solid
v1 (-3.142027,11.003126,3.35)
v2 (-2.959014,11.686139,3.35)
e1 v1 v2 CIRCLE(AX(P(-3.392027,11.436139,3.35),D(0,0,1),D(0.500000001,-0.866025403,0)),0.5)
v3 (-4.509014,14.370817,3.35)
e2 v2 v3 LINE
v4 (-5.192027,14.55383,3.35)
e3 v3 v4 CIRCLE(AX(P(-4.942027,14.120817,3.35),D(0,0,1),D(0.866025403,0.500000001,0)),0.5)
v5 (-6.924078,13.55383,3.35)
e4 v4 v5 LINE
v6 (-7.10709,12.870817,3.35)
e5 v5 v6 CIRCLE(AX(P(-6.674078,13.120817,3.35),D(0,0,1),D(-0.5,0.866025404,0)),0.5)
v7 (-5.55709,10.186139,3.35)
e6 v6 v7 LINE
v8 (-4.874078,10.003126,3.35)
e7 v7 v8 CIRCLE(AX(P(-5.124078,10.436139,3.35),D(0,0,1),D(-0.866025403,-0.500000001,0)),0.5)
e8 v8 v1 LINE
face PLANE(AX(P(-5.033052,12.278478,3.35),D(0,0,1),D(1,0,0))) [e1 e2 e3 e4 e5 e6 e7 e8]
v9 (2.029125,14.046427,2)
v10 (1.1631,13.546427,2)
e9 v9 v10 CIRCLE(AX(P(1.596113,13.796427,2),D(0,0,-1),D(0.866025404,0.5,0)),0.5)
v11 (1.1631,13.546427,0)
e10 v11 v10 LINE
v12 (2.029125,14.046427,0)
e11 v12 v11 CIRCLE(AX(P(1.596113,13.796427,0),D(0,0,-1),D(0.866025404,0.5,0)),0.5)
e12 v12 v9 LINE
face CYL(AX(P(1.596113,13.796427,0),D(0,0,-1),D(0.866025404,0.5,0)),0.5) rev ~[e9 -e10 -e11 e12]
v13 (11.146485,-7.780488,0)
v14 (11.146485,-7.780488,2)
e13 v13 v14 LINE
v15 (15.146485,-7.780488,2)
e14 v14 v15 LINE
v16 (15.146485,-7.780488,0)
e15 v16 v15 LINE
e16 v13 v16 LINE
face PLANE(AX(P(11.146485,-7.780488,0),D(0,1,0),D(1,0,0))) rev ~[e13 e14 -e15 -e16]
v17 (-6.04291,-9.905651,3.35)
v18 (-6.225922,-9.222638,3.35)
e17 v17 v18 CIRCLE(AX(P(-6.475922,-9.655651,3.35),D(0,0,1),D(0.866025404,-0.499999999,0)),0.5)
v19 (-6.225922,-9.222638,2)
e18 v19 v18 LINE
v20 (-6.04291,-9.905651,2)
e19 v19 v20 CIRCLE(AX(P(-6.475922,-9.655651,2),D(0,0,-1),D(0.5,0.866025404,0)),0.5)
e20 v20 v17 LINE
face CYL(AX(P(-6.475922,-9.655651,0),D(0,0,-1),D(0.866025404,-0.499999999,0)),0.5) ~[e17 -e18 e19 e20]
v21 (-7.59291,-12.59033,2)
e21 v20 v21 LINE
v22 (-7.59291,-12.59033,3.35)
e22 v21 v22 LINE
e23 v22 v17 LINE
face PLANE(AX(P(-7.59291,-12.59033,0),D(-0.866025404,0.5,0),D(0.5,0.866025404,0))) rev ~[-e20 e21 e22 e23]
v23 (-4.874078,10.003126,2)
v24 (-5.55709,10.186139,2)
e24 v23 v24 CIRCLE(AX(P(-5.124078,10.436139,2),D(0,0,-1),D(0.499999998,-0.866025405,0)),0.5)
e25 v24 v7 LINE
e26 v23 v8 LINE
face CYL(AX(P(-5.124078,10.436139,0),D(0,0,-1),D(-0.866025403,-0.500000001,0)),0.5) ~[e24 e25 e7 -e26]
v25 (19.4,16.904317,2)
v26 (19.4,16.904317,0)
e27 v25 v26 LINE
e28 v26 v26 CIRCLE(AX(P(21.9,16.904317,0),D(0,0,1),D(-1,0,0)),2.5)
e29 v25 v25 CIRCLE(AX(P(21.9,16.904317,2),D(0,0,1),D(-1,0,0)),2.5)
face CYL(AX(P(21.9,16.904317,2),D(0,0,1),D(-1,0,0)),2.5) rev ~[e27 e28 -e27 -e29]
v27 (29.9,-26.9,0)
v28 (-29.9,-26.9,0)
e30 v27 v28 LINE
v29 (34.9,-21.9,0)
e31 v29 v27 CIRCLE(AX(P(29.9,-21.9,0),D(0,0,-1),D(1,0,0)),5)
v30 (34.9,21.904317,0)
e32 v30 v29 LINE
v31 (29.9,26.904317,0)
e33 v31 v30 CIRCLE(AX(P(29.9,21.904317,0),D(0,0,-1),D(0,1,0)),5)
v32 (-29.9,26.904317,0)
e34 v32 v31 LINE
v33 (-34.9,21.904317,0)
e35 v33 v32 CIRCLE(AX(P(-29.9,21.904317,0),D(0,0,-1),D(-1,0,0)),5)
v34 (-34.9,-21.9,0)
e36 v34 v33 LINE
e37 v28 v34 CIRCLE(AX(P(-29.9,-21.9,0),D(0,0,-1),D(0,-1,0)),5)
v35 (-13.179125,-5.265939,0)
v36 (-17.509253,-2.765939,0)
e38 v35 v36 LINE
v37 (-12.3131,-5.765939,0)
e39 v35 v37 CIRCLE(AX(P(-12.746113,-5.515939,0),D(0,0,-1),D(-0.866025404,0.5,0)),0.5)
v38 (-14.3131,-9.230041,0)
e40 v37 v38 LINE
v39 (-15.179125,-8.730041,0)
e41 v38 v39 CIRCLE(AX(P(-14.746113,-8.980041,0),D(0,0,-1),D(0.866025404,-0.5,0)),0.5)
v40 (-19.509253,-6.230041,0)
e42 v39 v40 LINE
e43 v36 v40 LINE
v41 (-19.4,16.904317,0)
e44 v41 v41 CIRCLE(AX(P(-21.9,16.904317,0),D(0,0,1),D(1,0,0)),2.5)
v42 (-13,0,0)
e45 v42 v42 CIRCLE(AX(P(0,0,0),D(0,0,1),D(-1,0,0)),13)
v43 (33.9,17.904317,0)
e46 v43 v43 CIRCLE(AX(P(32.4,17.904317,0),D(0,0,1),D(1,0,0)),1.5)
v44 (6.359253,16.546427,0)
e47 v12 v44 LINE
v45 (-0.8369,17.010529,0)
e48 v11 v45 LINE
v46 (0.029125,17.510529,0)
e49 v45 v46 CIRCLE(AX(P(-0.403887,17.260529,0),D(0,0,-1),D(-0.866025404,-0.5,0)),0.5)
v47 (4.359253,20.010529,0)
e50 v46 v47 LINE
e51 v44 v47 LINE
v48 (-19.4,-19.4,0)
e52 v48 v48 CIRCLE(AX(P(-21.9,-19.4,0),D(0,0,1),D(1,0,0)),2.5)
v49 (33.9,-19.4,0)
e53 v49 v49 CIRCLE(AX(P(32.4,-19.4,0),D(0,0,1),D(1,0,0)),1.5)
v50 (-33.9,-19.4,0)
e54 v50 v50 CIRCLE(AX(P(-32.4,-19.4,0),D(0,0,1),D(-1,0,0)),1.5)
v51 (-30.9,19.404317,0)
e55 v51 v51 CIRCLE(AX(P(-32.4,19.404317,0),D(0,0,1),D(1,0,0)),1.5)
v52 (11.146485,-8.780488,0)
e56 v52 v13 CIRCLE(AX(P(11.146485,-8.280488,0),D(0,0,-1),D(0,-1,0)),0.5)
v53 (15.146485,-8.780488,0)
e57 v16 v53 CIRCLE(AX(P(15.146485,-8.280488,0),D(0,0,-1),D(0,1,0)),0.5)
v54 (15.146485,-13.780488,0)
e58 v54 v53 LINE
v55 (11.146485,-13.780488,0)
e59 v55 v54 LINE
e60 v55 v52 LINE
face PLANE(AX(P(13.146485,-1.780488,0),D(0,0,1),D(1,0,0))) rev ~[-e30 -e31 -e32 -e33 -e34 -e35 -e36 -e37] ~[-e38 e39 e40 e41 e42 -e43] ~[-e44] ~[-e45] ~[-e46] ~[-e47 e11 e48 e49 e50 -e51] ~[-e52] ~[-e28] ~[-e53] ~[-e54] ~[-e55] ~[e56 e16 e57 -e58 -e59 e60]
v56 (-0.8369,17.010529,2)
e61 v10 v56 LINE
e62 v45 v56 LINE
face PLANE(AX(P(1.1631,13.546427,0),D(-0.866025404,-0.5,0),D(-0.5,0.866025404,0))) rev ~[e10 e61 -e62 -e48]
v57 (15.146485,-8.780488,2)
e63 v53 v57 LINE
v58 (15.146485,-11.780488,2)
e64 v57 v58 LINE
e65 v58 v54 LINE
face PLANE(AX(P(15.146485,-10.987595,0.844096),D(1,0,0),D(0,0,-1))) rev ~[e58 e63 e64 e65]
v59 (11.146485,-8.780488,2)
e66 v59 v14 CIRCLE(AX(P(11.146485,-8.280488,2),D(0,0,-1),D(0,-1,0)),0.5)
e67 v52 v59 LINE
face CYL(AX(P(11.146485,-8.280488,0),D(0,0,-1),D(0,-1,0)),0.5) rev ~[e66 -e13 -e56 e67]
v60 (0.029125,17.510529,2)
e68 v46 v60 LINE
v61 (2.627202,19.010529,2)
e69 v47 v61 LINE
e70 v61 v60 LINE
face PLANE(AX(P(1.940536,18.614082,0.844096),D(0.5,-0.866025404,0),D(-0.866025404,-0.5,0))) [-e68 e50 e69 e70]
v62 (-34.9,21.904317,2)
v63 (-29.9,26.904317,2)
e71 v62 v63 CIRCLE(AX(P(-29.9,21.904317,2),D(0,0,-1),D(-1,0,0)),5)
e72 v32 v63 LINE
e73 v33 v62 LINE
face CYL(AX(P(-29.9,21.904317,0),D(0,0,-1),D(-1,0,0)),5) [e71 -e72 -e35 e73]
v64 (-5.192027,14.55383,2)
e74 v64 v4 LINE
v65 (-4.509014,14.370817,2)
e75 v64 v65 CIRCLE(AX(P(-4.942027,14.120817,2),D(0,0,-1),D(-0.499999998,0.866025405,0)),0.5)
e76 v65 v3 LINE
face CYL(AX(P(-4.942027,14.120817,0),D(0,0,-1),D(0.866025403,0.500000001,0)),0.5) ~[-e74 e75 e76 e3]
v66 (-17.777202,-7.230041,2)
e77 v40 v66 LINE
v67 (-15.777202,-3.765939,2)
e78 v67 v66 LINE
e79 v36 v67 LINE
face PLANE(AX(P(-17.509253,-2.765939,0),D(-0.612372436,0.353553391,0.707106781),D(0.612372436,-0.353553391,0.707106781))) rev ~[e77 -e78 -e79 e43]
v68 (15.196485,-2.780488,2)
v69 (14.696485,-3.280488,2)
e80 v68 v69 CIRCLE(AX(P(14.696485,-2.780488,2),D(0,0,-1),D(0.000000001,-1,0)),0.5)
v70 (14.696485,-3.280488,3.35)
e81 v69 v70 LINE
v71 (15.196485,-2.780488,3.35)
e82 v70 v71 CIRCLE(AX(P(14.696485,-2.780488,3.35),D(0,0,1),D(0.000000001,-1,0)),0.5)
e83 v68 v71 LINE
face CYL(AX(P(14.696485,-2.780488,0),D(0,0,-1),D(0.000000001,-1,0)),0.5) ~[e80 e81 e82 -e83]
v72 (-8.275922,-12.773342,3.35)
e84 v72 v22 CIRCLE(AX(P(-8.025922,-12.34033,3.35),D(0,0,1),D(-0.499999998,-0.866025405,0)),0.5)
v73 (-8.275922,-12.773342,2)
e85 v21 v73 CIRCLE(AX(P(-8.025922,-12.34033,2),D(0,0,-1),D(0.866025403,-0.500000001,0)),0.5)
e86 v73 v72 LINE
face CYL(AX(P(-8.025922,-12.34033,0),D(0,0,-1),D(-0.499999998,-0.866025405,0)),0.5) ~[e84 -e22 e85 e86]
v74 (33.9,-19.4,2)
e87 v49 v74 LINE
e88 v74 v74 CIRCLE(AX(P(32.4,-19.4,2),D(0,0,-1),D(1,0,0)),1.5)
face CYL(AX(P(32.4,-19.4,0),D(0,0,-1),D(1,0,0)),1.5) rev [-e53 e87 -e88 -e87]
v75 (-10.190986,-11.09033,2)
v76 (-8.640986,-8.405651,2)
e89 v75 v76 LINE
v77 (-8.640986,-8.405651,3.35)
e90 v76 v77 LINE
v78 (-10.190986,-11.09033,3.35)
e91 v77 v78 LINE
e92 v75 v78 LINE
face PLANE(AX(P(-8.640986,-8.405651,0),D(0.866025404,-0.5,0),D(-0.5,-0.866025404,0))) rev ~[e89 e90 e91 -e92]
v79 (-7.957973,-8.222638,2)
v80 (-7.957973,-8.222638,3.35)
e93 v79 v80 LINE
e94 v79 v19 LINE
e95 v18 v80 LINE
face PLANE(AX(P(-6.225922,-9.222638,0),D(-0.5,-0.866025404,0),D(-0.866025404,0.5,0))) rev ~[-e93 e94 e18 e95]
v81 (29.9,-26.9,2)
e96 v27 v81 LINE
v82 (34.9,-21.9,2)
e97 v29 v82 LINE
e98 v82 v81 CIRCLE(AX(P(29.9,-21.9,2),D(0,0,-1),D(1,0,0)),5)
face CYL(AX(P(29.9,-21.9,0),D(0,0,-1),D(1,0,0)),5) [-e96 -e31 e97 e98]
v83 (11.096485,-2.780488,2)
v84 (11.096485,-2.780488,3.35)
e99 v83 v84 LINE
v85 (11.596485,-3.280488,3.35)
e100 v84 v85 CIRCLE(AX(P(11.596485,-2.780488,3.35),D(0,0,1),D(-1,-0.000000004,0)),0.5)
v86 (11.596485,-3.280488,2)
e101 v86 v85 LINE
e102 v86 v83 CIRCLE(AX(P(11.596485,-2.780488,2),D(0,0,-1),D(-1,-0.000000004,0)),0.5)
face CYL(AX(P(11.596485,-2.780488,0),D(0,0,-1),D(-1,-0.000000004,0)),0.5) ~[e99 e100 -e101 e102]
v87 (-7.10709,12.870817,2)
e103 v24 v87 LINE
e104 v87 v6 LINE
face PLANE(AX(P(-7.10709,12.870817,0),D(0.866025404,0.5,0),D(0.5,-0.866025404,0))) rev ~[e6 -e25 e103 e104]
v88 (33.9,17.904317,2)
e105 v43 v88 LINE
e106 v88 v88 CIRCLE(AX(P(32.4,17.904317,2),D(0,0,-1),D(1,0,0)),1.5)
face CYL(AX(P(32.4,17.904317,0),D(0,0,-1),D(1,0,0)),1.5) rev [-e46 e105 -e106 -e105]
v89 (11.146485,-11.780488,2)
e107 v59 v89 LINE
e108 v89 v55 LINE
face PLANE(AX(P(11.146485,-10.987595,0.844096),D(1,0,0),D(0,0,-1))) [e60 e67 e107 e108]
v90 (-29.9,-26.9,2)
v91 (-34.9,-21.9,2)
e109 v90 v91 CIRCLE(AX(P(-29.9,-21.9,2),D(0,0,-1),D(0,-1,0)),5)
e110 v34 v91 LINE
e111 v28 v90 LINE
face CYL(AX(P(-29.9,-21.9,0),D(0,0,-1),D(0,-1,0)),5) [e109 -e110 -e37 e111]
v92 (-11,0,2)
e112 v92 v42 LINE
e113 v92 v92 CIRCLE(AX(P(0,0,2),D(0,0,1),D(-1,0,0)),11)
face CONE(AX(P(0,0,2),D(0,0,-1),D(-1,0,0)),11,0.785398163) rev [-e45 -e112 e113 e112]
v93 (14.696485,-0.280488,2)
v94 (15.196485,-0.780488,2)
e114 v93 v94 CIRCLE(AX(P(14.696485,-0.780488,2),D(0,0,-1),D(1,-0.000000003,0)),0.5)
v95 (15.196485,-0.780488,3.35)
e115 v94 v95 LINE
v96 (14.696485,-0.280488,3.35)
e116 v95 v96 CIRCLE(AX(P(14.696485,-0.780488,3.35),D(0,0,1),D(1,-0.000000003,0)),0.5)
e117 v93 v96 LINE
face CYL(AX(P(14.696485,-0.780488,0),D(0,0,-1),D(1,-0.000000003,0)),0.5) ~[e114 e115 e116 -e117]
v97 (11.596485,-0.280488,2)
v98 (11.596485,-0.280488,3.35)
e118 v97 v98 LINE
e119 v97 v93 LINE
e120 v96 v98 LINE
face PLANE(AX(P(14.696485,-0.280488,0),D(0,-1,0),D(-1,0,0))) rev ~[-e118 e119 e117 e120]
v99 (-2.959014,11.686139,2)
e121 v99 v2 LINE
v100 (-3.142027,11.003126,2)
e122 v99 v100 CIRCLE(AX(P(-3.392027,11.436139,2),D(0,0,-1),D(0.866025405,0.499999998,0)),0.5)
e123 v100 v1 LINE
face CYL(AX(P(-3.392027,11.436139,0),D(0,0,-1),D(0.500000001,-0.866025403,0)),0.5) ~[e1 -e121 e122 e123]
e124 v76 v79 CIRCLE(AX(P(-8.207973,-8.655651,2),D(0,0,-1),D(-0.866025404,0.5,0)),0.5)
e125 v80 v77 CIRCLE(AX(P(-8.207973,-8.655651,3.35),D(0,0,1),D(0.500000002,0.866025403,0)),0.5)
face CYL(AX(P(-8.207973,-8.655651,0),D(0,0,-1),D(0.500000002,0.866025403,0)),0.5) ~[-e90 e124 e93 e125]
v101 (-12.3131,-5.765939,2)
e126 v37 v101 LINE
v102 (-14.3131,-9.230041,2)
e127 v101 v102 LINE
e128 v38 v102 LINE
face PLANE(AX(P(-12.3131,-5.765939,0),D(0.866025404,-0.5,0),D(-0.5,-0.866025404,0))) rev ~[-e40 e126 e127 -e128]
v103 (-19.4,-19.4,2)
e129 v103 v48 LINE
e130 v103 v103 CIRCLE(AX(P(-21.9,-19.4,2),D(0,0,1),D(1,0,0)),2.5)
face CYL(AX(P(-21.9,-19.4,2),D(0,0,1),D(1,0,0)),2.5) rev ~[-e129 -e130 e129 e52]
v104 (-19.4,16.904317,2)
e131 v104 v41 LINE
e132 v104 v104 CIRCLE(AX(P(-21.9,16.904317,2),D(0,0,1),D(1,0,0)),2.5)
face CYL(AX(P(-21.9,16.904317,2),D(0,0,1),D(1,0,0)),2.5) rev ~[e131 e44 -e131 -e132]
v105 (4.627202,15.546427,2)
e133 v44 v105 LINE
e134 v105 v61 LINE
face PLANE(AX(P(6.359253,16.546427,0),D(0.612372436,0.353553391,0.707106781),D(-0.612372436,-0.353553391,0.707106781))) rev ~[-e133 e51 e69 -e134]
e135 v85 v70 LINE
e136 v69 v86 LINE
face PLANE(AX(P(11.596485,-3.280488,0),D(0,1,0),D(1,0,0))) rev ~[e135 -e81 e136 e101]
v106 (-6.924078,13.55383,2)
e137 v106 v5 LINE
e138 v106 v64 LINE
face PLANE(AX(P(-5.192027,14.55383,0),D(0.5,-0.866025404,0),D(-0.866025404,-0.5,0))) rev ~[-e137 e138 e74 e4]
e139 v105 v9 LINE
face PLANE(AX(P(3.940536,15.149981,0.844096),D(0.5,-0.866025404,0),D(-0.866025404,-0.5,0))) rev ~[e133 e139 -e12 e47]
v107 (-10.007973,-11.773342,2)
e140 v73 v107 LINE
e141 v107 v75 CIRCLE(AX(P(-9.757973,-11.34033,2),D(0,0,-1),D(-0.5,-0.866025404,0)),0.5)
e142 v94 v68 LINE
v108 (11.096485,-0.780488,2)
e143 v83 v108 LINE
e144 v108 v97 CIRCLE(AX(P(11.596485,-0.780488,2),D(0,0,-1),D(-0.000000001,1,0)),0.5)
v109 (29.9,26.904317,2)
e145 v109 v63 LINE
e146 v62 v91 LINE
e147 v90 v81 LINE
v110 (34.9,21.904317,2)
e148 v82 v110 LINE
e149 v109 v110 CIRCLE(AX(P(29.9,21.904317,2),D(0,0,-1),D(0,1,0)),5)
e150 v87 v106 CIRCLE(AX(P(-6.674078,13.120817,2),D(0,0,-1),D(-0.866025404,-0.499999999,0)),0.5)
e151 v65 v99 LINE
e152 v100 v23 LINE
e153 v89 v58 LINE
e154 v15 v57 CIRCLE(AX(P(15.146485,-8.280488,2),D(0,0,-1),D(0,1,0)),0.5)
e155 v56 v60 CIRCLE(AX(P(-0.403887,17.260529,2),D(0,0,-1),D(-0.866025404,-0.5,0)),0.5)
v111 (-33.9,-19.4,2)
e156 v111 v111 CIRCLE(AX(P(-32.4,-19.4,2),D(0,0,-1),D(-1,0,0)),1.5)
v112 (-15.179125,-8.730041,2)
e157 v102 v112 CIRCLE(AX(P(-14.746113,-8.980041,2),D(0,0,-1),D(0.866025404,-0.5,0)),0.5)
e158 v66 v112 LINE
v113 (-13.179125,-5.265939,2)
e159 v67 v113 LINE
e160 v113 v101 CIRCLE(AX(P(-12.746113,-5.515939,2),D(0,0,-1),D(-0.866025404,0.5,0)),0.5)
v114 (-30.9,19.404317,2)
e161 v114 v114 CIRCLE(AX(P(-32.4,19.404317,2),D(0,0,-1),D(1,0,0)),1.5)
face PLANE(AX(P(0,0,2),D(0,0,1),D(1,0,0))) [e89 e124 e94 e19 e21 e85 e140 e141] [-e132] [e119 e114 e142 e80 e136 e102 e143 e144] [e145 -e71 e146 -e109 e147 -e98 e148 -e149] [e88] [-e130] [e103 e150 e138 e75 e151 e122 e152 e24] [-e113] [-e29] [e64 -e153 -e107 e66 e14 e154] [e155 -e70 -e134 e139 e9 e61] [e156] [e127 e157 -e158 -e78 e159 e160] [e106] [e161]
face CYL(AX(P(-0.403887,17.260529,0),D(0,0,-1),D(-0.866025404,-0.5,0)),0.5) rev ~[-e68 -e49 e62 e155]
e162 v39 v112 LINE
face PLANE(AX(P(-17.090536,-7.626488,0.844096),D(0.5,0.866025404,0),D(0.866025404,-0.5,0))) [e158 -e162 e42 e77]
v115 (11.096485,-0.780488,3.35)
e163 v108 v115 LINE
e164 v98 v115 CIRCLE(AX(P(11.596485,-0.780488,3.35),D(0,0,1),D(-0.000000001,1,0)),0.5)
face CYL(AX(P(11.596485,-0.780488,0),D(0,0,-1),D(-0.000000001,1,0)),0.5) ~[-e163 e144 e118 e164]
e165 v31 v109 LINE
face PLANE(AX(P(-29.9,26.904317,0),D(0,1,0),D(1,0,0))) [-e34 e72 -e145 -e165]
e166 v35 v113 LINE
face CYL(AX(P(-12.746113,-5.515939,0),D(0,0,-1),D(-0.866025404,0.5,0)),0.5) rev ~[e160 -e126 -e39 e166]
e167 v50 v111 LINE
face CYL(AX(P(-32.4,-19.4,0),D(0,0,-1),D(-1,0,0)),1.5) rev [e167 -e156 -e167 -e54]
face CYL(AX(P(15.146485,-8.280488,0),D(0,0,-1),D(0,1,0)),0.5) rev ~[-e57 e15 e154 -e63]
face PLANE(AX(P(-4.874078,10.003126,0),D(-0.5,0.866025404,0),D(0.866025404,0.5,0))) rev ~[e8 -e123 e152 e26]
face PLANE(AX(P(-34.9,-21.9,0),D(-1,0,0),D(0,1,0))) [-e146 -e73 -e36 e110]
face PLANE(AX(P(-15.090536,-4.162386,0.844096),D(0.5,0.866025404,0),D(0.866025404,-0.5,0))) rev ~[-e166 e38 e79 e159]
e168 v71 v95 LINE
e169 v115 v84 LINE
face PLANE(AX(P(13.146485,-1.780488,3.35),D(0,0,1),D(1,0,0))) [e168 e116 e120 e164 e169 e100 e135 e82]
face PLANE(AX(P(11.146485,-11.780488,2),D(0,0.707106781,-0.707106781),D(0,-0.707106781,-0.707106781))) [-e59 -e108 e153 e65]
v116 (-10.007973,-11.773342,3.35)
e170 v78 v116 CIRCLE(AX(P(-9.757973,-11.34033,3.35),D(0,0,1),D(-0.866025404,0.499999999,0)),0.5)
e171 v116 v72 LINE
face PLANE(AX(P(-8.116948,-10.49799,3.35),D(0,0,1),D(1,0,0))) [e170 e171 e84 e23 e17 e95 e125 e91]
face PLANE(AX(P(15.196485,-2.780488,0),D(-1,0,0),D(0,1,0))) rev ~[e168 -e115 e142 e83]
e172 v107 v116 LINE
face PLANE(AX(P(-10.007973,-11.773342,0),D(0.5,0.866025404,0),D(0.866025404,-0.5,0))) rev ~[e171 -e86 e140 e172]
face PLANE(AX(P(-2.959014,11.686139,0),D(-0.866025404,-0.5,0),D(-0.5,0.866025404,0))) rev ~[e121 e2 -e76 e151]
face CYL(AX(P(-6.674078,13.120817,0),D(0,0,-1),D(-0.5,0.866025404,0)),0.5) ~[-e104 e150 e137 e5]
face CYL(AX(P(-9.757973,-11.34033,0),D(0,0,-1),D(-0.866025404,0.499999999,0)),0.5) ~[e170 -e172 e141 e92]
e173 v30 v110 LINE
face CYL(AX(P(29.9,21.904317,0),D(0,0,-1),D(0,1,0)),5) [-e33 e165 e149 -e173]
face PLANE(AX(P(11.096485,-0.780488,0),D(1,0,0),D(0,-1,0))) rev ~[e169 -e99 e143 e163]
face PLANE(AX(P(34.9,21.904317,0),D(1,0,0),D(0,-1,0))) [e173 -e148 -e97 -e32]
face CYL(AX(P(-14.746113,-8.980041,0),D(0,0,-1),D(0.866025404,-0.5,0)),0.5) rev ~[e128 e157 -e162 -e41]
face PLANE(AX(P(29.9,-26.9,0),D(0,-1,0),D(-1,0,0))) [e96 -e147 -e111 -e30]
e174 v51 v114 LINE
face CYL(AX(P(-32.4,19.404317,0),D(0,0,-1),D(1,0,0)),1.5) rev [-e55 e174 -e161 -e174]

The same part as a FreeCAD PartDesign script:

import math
import FreeCAD as App
import Part
import Sketcher

V = App.Vector
Q = App.Units.Quantity

doc = App.newDocument("Part")
params = doc.addObject("Spreadsheet::Sheet", "Params")
for row, (alias, value) in enumerate([
    ("sketch1_radius", "0.5 mm"),
    ("sketch1_width", "76 mm"),
    ("sketch1_width2", "4 mm"),
    ("sketch1_height", "60 mm"),
    ("sketch1_length", "2 mm"),
    ("pad1_length", "2 mm"),
    ("sketch2_radius", "0.5 mm"),
    ("sketch2_height", "2 mm"),
    ("sketch2_length", "2 mm"),
    ("sketch2_width", "3.1 mm"),
    ("sketch2_length2", "3.1 mm"),
    ("pad2_length", "3.35 mm"),
    ("sketch3_radius", "5 mm"),
    ("sketch3_width", "76 mm"),
    ("sketch3_height", "60 mm"),
    ("sketch3_width2", "59.8 mm"),
    ("pocket1_length", "2.95 mm"),
    ("sketch4_diameter", "3.43 mm"),
    ("pocket2_length", "10 mm"),
    ("sketch5_width", "11 mm"),
    ("sketch5_width2", "13 mm"),
    ("sketch5_height", "2 mm"),
    ("groove_angle", "360 deg"),
    ("sketch6_diameter", "3 mm"),
    ("sketch7_diameter", "5 mm"),
    ("sketch8_width", "3 mm"),
    ("sketch8_width2", "5 mm"),
    ("sketch8_height", "2 mm"),
    ("pocket5_length", "4 mm"),
    ("sketch9_width", "5 mm"),
    ("sketch9_width2", "3 mm"),
    ("sketch9_height", "2 mm"),
    ("pocket6_length", "4 mm"),
    ("sketch10_width", "5 mm"),
    ("sketch10_width2", "3 mm"),
    ("sketch10_height", "2 mm"),
    ("pocket7_length", "4 mm"),
], start=1):
    params.set(f"A{row}", alias)
    params.set(f"B{row}", "=" + value)
    params.setAlias(f"B{row}", alias)

body = doc.addObject("PartDesign::Body", "Body")

sketch1 = body.newObject("Sketcher::SketchObject", "Sketch")
sketch1.AttachmentSupport = (doc.getObject("XY_Plane"), [""])
sketch1.MapMode = "FlatFace"
sketch1.addGeometry(Part.LineSegment(V(-38, 30, 0), V(-38, -30, 0)), False)
sketch1.addGeometry(Part.LineSegment(V(-38, -30, 0), V(38, -30, 0)), False)
sketch1.addGeometry(Part.LineSegment(V(38, -30, 0), V(38, 30, 0)), False)
sketch1.addGeometry(Part.LineSegment(V(38, 30, 0), V(-38, 30, 0)), False)
sketch1.addGeometry(Part.ArcOfCircle(Part.Circle(V(-6.5, -9.7, 0), V(0, 0, 1), 0.5), math.radians(-30), math.radians(60)), False)
sketch1.addGeometry(Part.LineSegment(V(-6, -9.9, 0), V(-7.6, -12.6, 0)), False)
sketch1.addGeometry(Part.ArcOfCircle(Part.Circle(V(-8, -12.3, 0), V(0, 0, 1), 0.5), math.radians(-120), math.radians(-30)), False)
sketch1.addGeometry(Part.LineSegment(V(-8.3, -12.8, 0), V(-10, -11.8, 0)), False)
sketch1.addGeometry(Part.ArcOfCircle(Part.Circle(V(-9.8, -11.3, 0), V(0, 0, 1), 0.5), math.radians(150), math.radians(240)), False)
sketch1.addGeometry(Part.LineSegment(V(-10.2, -11.1, 0), V(-8.6, -8.4, 0)), False)
sketch1.addGeometry(Part.ArcOfCircle(Part.Circle(V(-8.2, -8.7, 0), V(0, 0, 1), 0.5), math.radians(60), math.radians(150)), False)
sketch1.addGeometry(Part.LineSegment(V(-8, -8.2, 0), V(-6.2, -9.2, 0)), False)
sketch1.addGeometry(Part.LineSegment(V(-12.3, -5.8, 0), V(-14.3, -9.2, 0)), False)
sketch1.addGeometry(Part.ArcOfCircle(Part.Circle(V(-14.7, -9, 0), V(0, 0, 1), 0.5), math.radians(150), math.radians(330)), False)
sketch1.addGeometry(Part.LineSegment(V(-15.2, -8.7, 0), V(-13.2, -5.3, 0)), False)
sketch1.addGeometry(Part.ArcOfCircle(Part.Circle(V(-12.7, -5.5, 0), V(0, 0, 1), 0.5), math.radians(-30), math.radians(150)), False)
sketch1.addGeometry(Part.LineSegment(V(15.1, -8.8, 0), V(11.1, -8.8, 0)), False)
sketch1.addGeometry(Part.ArcOfCircle(Part.Circle(V(11.1, -8.3, 0), V(0, 0, 1), 0.5), math.radians(90), math.radians(270)), False)
sketch1.addGeometry(Part.LineSegment(V(11.1, -7.8, 0), V(15.1, -7.8, 0)), False)
sketch1.addGeometry(Part.ArcOfCircle(Part.Circle(V(15.1, -8.3, 0), V(0, 0, 1), 0.5), math.radians(-90), math.radians(90)), False)
sketch1.addGeometry(Part.ArcOfCircle(Part.Circle(V(-5.1, 10.4, 0), V(0, 0, 1), 0.5), math.radians(-150), math.radians(-60)), False)
sketch1.addGeometry(Part.LineSegment(V(-5.6, 10.2, 0), V(-7.1, 12.9, 0)), False)
sketch1.addGeometry(Part.ArcOfCircle(Part.Circle(V(-6.7, 13.1, 0), V(0, 0, 1), 0.5), math.radians(120), math.radians(210)), False)
sketch1.addGeometry(Part.LineSegment(V(-6.9, 13.6, 0), V(-5.2, 14.6, 0)), False)
sketch1.addGeometry(Part.ArcOfCircle(Part.Circle(V(-4.9, 14.1, 0), V(0, 0, 1), 0.5), math.radians(30), math.radians(120)), False)
sketch1.addGeometry(Part.LineSegment(V(-4.5, 14.4, 0), V(-3, 11.7, 0)), False)
sketch1.addGeometry(Part.ArcOfCircle(Part.Circle(V(-3.4, 11.4, 0), V(0, 0, 1), 0.5), math.radians(-60), math.radians(30)), False)
sketch1.addGeometry(Part.LineSegment(V(-3.1, 11, 0), V(-4.9, 10, 0)), False)
sketch1.addGeometry(Part.ArcOfCircle(Part.Circle(V(1.6, 13.8, 0), V(0, 0, 1), 0.5), math.radians(-150), math.radians(30)), False)
sketch1.addGeometry(Part.LineSegment(V(1.2, 13.5, 0), V(-0.8, 17, 0)), False)
sketch1.addGeometry(Part.ArcOfCircle(Part.Circle(V(-0.4, 17.3, 0), V(0, 0, 1), 0.5), math.radians(30), math.radians(210)), False)
sketch1.addGeometry(Part.LineSegment(V(0, 17.5, 0), V(2, 14, 0)), False)
sketch1.addConstraint(Sketcher.Constraint("Coincident", 0, 2, 1, 1))
sketch1.addConstraint(Sketcher.Constraint("Coincident", 1, 2, 2, 1))
sketch1.addConstraint(Sketcher.Constraint("Coincident", 2, 2, 3, 1))
sketch1.addConstraint(Sketcher.Constraint("Coincident", 3, 2, 0, 1))
sketch1.addConstraint(Sketcher.Constraint("Tangent", 4, 1, 5, 1))
sketch1.addConstraint(Sketcher.Constraint("Tangent", 5, 2, 6, 2))
sketch1.addConstraint(Sketcher.Constraint("Tangent", 6, 1, 7, 1))
sketch1.addConstraint(Sketcher.Constraint("Tangent", 7, 2, 8, 2))
sketch1.addConstraint(Sketcher.Constraint("Tangent", 8, 1, 9, 1))
sketch1.addConstraint(Sketcher.Constraint("Tangent", 9, 2, 10, 2))
sketch1.addConstraint(Sketcher.Constraint("Tangent", 10, 1, 11, 1))
sketch1.addConstraint(Sketcher.Constraint("Tangent", 11, 2, 4, 2))
sketch1.addConstraint(Sketcher.Constraint("Tangent", 12, 2, 13, 2))
sketch1.addConstraint(Sketcher.Constraint("Tangent", 13, 1, 14, 1))
sketch1.addConstraint(Sketcher.Constraint("Tangent", 14, 2, 15, 2))
sketch1.addConstraint(Sketcher.Constraint("Tangent", 15, 1, 12, 1))
sketch1.addConstraint(Sketcher.Constraint("Tangent", 16, 2, 17, 2))
sketch1.addConstraint(Sketcher.Constraint("Tangent", 17, 1, 18, 1))
sketch1.addConstraint(Sketcher.Constraint("Tangent", 18, 2, 19, 2))
sketch1.addConstraint(Sketcher.Constraint("Tangent", 19, 1, 16, 1))
sketch1.addConstraint(Sketcher.Constraint("Tangent", 20, 1, 21, 1))
sketch1.addConstraint(Sketcher.Constraint("Tangent", 21, 2, 22, 2))
sketch1.addConstraint(Sketcher.Constraint("Tangent", 22, 1, 23, 1))
sketch1.addConstraint(Sketcher.Constraint("Tangent", 23, 2, 24, 2))
sketch1.addConstraint(Sketcher.Constraint("Tangent", 24, 1, 25, 1))
sketch1.addConstraint(Sketcher.Constraint("Tangent", 25, 2, 26, 2))
sketch1.addConstraint(Sketcher.Constraint("Tangent", 26, 1, 27, 1))
sketch1.addConstraint(Sketcher.Constraint("Tangent", 27, 2, 20, 2))
sketch1.addConstraint(Sketcher.Constraint("Tangent", 28, 1, 29, 1))
sketch1.addConstraint(Sketcher.Constraint("Tangent", 29, 2, 30, 2))
sketch1.addConstraint(Sketcher.Constraint("Tangent", 30, 1, 31, 1))
sketch1.addConstraint(Sketcher.Constraint("Tangent", 31, 2, 28, 2))
sketch1.addConstraint(Sketcher.Constraint("Vertical", 0))
sketch1.addConstraint(Sketcher.Constraint("Horizontal", 1))
sketch1.addConstraint(Sketcher.Constraint("Vertical", 2))
sketch1.addConstraint(Sketcher.Constraint("Horizontal", 3))
sketch1.addConstraint(Sketcher.Constraint("Horizontal", 16))
sketch1.addConstraint(Sketcher.Constraint("Horizontal", 18))
sketch1.addConstraint(Sketcher.Constraint("Equal", 4, 6))
sketch1.addConstraint(Sketcher.Constraint("Equal", 6, 8))
sketch1.addConstraint(Sketcher.Constraint("Equal", 8, 10))
sketch1.addConstraint(Sketcher.Constraint("Equal", 10, 13))
sketch1.addConstraint(Sketcher.Constraint("Equal", 13, 15))
sketch1.addConstraint(Sketcher.Constraint("Equal", 15, 17))
sketch1.addConstraint(Sketcher.Constraint("Equal", 19, 20))
sketch1.addConstraint(Sketcher.Constraint("Equal", 20, 22))
sketch1.addConstraint(Sketcher.Constraint("Equal", 22, 24))
sketch1.addConstraint(Sketcher.Constraint("Equal", 24, 26))
sketch1.addConstraint(Sketcher.Constraint("Equal", 26, 28))
sketch1.addConstraint(Sketcher.Constraint("Equal", 28, 30))
sketch1.addConstraint(Sketcher.Constraint("Symmetric", 0, 2, 2, 2, -1, 1))
sketch1.addConstraint(Sketcher.Constraint("Perpendicular", 5, 7))
sketch1.addConstraint(Sketcher.Constraint("Perpendicular", 7, 9))
sketch1.addConstraint(Sketcher.Constraint("Perpendicular", 9, 11))
sketch1.addConstraint(Sketcher.Constraint("Perpendicular", 11, 12))
sketch1.addConstraint(Sketcher.Constraint("Perpendicular", 21, 23))
sketch1.addConstraint(Sketcher.Constraint("Perpendicular", 23, 25))
sketch1.addConstraint(Sketcher.Constraint("Perpendicular", 25, 27))
sketch1.addConstraint(Sketcher.Constraint("Perpendicular", 27, 29))
sketch1.addConstraint(Sketcher.Constraint("Equal", 9, 21))
sketch1.addConstraint(Sketcher.Constraint("Equal", 11, 23))
sketch1.addConstraint(Sketcher.Constraint("Equal", 14, 29))
sketch1.addConstraint(Sketcher.Constraint("Radius", 4, 0.5))
sketch1.addConstraint(Sketcher.Constraint("DistanceX", 1, 1, 1, 2, 76.0))
sketch1.addConstraint(Sketcher.Constraint("DistanceX", 16, 2, 16, 1, 4.0))
sketch1.addConstraint(Sketcher.Constraint("DistanceY", 0, 2, 0, 1, 60.0))
sketch1.addConstraint(Sketcher.Constraint("Angle", 5, Q("-120 deg")))
sketch1.addConstraint(Sketcher.Constraint("Angle", 21, Q("120 deg")))
sketch1.addConstraint(Sketcher.Constraint("Distance", 7, 2.0))
sketch1.addConstraint(Sketcher.Constraint("Distance", 12, 4.0))
sketch1.addConstraint(Sketcher.Constraint("Distance", 5, 3.1))
sketch1.addConstraint(Sketcher.Constraint("DistanceX", 12, 2, -1, 1, 14.3131))
sketch1.addConstraint(Sketcher.Constraint("DistanceX", -1, 1, 28, 1, 1.1631))
sketch1.addConstraint(Sketcher.Constraint("DistanceY", 7, 2, 12, 2, 2.543301))
sketch1.addConstraint(Sketcher.Constraint("DistanceY", 26, 1, 28, 1, 2.543301))
sketch1.addConstraint(Sketcher.Constraint("DistanceY", 4, 3, -1, 1, 9.655651))
sketch1.addConstraint(Sketcher.Constraint("DistanceY", -1, 1, 20, 3, 10.436139))
sketch1.addConstraint(Sketcher.Constraint("DistanceX", 4, 1, -1, 1, 6.04291))
sketch1.addConstraint(Sketcher.Constraint("DistanceX", 20, 1, -1, 1, 5.55709))
sketch1.addConstraint(Sketcher.Constraint("DistanceY", 6, 3, 17, 3, 4.059842))
sketch1.addConstraint(Sketcher.Constraint("DistanceX", -1, 1, 17, 3, 11.146485))
sketch1.setExpression("Constraints[62]", "Params.sketch1_radius")
sketch1.setExpression("Constraints[63]", "Params.sketch1_width")
sketch1.setExpression("Constraints[64]", "Params.sketch1_width2")
sketch1.setExpression("Constraints[65]", "Params.sketch1_height")
sketch1.setExpression("Constraints[68]", "Params.sketch1_length")
pad1 = body.newObject("PartDesign::Pad", "Pad")
pad1.Profile = sketch1
pad1.setExpression("Length", "Params.pad1_length")

sketch2 = body.newObject("Sketcher::SketchObject", "Sketch001")
sketch2.AttachmentSupport = (doc.getObject("XY_Plane"), [""])
sketch2.MapMode = "FlatFace"
sketch2.addGeometry(Part.LineSegment(V(14.7, -0.28, 0), V(11.6, -0.28, 0)), False)
sketch2.addGeometry(Part.ArcOfCircle(Part.Circle(V(11.6, -0.78, 0), V(0, 0, 1), 0.5), math.radians(90), math.radians(180)), False)
sketch2.addGeometry(Part.LineSegment(V(11.1, -0.78, 0), V(11.1, -2.78, 0)), False)
sketch2.addGeometry(Part.ArcOfCircle(Part.Circle(V(11.6, -2.78, 0), V(0, 0, 1), 0.5), math.radians(-180), math.radians(-90)), False)
sketch2.addGeometry(Part.LineSegment(V(11.6, -3.28, 0), V(14.7, -3.28, 0)), False)
sketch2.addGeometry(Part.ArcOfCircle(Part.Circle(V(14.7, -2.78, 0), V(0, 0, 1), 0.5), math.radians(-90), math.radians(0)), False)
sketch2.addGeometry(Part.LineSegment(V(15.2, -2.78, 0), V(15.2, -0.78, 0)), False)
sketch2.addGeometry(Part.ArcOfCircle(Part.Circle(V(14.7, -0.78, 0), V(0, 0, 1), 0.5), math.radians(0), math.radians(90)), False)
sketch2.addGeometry(Part.LineSegment(V(-7.59, -12.59, 0), V(-6.04, -9.91, 0)), False)
sketch2.addGeometry(Part.ArcOfCircle(Part.Circle(V(-6.48, -9.66, 0), V(0, 0, 1), 0.5), math.radians(-30), math.radians(60)), False)
sketch2.addGeometry(Part.LineSegment(V(-6.23, -9.22, 0), V(-7.96, -8.22, 0)), False)
sketch2.addGeometry(Part.ArcOfCircle(Part.Circle(V(-8.21, -8.66, 0), V(0, 0, 1), 0.5), math.radians(60), math.radians(150)), False)
sketch2.addGeometry(Part.LineSegment(V(-8.64, -8.41, 0), V(-10.19, -11.09, 0)), False)
sketch2.addGeometry(Part.ArcOfCircle(Part.Circle(V(-9.76, -11.34, 0), V(0, 0, 1), 0.5), math.radians(150), math.radians(240)), False)
sketch2.addGeometry(Part.LineSegment(V(-10.01, -11.77, 0), V(-8.28, -12.77, 0)), False)
sketch2.addGeometry(Part.ArcOfCircle(Part.Circle(V(-8.03, -12.34, 0), V(0, 0, 1), 0.5), math.radians(-120), math.radians(-30)), False)
sketch2.addGeometry(Part.LineSegment(V(-7.11, 12.87, 0), V(-5.56, 10.19, 0)), False)
sketch2.addGeometry(Part.ArcOfCircle(Part.Circle(V(-5.12, 10.44, 0), V(0, 0, 1), 0.5), math.radians(-150), math.radians(-60)), False)
sketch2.addGeometry(Part.LineSegment(V(-4.87, 10, 0), V(-3.14, 11, 0)), False)
sketch2.addGeometry(Part.ArcOfCircle(Part.Circle(V(-3.39, 11.44, 0), V(0, 0, 1), 0.5), math.radians(-60), math.radians(30)), False)
sketch2.addGeometry(Part.LineSegment(V(-2.96, 11.69, 0), V(-4.51, 14.37, 0)), False)
sketch2.addGeometry(Part.ArcOfCircle(Part.Circle(V(-4.94, 14.12, 0), V(0, 0, 1), 0.5), math.radians(30), math.radians(120)), False)
sketch2.addGeometry(Part.LineSegment(V(-5.19, 14.55, 0), V(-6.92, 13.55, 0)), False)
sketch2.addGeometry(Part.ArcOfCircle(Part.Circle(V(-6.67, 13.12, 0), V(0, 0, 1), 0.5), math.radians(120), math.radians(210)), False)
sketch2.addConstraint(Sketcher.Constraint("Tangent", 0, 2, 1, 1))
sketch2.addConstraint(Sketcher.Constraint("Tangent", 1, 2, 2, 1))
sketch2.addConstraint(Sketcher.Constraint("Tangent", 2, 2, 3, 1))
sketch2.addConstraint(Sketcher.Constraint("Tangent", 3, 2, 4, 1))
sketch2.addConstraint(Sketcher.Constraint("Tangent", 4, 2, 5, 1))
sketch2.addConstraint(Sketcher.Constraint("Tangent", 5, 2, 6, 1))
sketch2.addConstraint(Sketcher.Constraint("Tangent", 6, 2, 7, 1))
sketch2.addConstraint(Sketcher.Constraint("Tangent", 7, 2, 0, 1))
sketch2.addConstraint(Sketcher.Constraint("Tangent", 8, 2, 9, 1))
sketch2.addConstraint(Sketcher.Constraint("Tangent", 9, 2, 10, 1))
sketch2.addConstraint(Sketcher.Constraint("Tangent", 10, 2, 11, 1))
sketch2.addConstraint(Sketcher.Constraint("Tangent", 11, 2, 12, 1))
sketch2.addConstraint(Sketcher.Constraint("Tangent", 12, 2, 13, 1))
sketch2.addConstraint(Sketcher.Constraint("Tangent", 13, 2, 14, 1))
sketch2.addConstraint(Sketcher.Constraint("Tangent", 14, 2, 15, 1))
sketch2.addConstraint(Sketcher.Constraint("Tangent", 15, 2, 8, 1))
sketch2.addConstraint(Sketcher.Constraint("Tangent", 16, 2, 17, 1))
sketch2.addConstraint(Sketcher.Constraint("Tangent", 17, 2, 18, 1))
sketch2.addConstraint(Sketcher.Constraint("Tangent", 18, 2, 19, 1))
sketch2.addConstraint(Sketcher.Constraint("Tangent", 19, 2, 20, 1))
sketch2.addConstraint(Sketcher.Constraint("Tangent", 20, 2, 21, 1))
sketch2.addConstraint(Sketcher.Constraint("Tangent", 21, 2, 22, 1))
sketch2.addConstraint(Sketcher.Constraint("Tangent", 22, 2, 23, 1))
sketch2.addConstraint(Sketcher.Constraint("Tangent", 23, 2, 16, 1))
sketch2.addConstraint(Sketcher.Constraint("Horizontal", 0))
sketch2.addConstraint(Sketcher.Constraint("Vertical", 2))
sketch2.addConstraint(Sketcher.Constraint("Horizontal", 4))
sketch2.addConstraint(Sketcher.Constraint("Vertical", 6))
sketch2.addConstraint(Sketcher.Constraint("Equal", 1, 3))
sketch2.addConstraint(Sketcher.Constraint("Equal", 3, 5))
sketch2.addConstraint(Sketcher.Constraint("Equal", 5, 7))
sketch2.addConstraint(Sketcher.Constraint("Equal", 7, 9))
sketch2.addConstraint(Sketcher.Constraint("Equal", 9, 11))
sketch2.addConstraint(Sketcher.Constraint("Equal", 11, 13))
sketch2.addConstraint(Sketcher.Constraint("Equal", 13, 15))
sketch2.addConstraint(Sketcher.Constraint("Equal", 15, 17))
sketch2.addConstraint(Sketcher.Constraint("Equal", 17, 19))
sketch2.addConstraint(Sketcher.Constraint("Equal", 19, 21))
sketch2.addConstraint(Sketcher.Constraint("Equal", 21, 23))
sketch2.addConstraint(Sketcher.Constraint("Perpendicular", 8, 10))
sketch2.addConstraint(Sketcher.Constraint("Perpendicular", 10, 12))
sketch2.addConstraint(Sketcher.Constraint("Perpendicular", 12, 14))
sketch2.addConstraint(Sketcher.Constraint("Perpendicular", 16, 18))
sketch2.addConstraint(Sketcher.Constraint("Perpendicular", 18, 20))
sketch2.addConstraint(Sketcher.Constraint("Perpendicular", 20, 22))
sketch2.addConstraint(Sketcher.Constraint("Equal", 12, 16))
sketch2.addConstraint(Sketcher.Constraint("Equal", 14, 18))
sketch2.addConstraint(Sketcher.Constraint("Radius", 1, 0.5))
sketch2.addConstraint(Sketcher.Constraint("DistanceY", 2, 2, 2, 1, 2.0))
sketch2.addConstraint(Sketcher.Constraint("Angle", 8, Q("60 deg")))
sketch2.addConstraint(Sketcher.Constraint("Angle", 16, Q("-60 deg")))
sketch2.addConstraint(Sketcher.Constraint("Distance", 10, 2.0))
sketch2.addConstraint(Sketcher.Constraint("DistanceX", 0, 2, 0, 1, 3.1))
sketch2.addConstraint(Sketcher.Constraint("Distance", 8, 3.1))
sketch2.addConstraint(Sketcher.Constraint("DistanceY", 9, 3, -1, 1, 9.655651))
sketch2.addConstraint(Sketcher.Constraint("DistanceY", -1, 1, 17, 3, 10.436139))
sketch2.addConstraint(Sketcher.Constraint("DistanceX", 8, 2, -1, 1, 6.04291))
sketch2.addConstraint(Sketcher.Constraint("DistanceX", 16, 2, -1, 1, 5.55709))
sketch2.addConstraint(Sketcher.Constraint("DistanceY", 13, 3, 3, 3, 8.559842))
sketch2.addConstraint(Sketcher.Constraint("DistanceX", 19, 3, 1, 3, 14.988512))
sketch2.setExpression("Constraints[47]", "Params.sketch2_radius")
sketch2.setExpression("Constraints[48]", "Params.sketch2_height")
sketch2.setExpression("Constraints[51]", "Params.sketch2_length")
sketch2.setExpression("Constraints[52]", "Params.sketch2_width")
sketch2.setExpression("Constraints[53]", "Params.sketch2_length2")
pad2 = body.newObject("PartDesign::Pad", "Pad001")
pad2.Profile = sketch2
pad2.setExpression("Length", "Params.pad2_length")

sketch3 = body.newObject("Sketcher::SketchObject", "Sketch002")
sketch3.AttachmentSupport = (doc.getObject("XY_Plane"), [""])
sketch3.MapMode = "FlatFace"
sketch3.addGeometry(Part.LineSegment(V(38, 30, 0), V(38, -30, 0)), False)
sketch3.addGeometry(Part.LineSegment(V(38, -30, 0), V(-38, -30, 0)), False)
sketch3.addGeometry(Part.LineSegment(V(-38, -30, 0), V(-38, 30, 0)), False)
sketch3.addGeometry(Part.LineSegment(V(-38, 30, 0), V(38, 30, 0)), False)
sketch3.addGeometry(Part.ArcOfCircle(Part.Circle(V(30, 22, 0), V(0, 0, 1), 5), math.radians(0), math.radians(90)), False)
sketch3.addGeometry(Part.LineSegment(V(30, 27, 0), V(-30, 27, 0)), False)
sketch3.addGeometry(Part.ArcOfCircle(Part.Circle(V(-30, 22, 0), V(0, 0, 1), 5), math.radians(90), math.radians(180)), False)
sketch3.addGeometry(Part.LineSegment(V(-35, 22, 0), V(-35, -22, 0)), False)
sketch3.addGeometry(Part.ArcOfCircle(Part.Circle(V(-30, -22, 0), V(0, 0, 1), 5), math.radians(180), math.radians(270)), False)
sketch3.addGeometry(Part.LineSegment(V(-30, -27, 0), V(30, -27, 0)), False)
sketch3.addGeometry(Part.ArcOfCircle(Part.Circle(V(30, -22, 0), V(0, 0, 1), 5), math.radians(-90), math.radians(0)), False)
sketch3.addGeometry(Part.LineSegment(V(35, -22, 0), V(35, 22, 0)), False)
sketch3.addConstraint(Sketcher.Constraint("Coincident", 0, 2, 1, 1))
sketch3.addConstraint(Sketcher.Constraint("Coincident", 1, 2, 2, 1))
sketch3.addConstraint(Sketcher.Constraint("Coincident", 2, 2, 3, 1))
sketch3.addConstraint(Sketcher.Constraint("Coincident", 3, 2, 0, 1))
sketch3.addConstraint(Sketcher.Constraint("Tangent", 4, 2, 5, 1))
sketch3.addConstraint(Sketcher.Constraint("Tangent", 5, 2, 6, 1))
sketch3.addConstraint(Sketcher.Constraint("Tangent", 6, 2, 7, 1))
sketch3.addConstraint(Sketcher.Constraint("Tangent", 7, 2, 8, 1))
sketch3.addConstraint(Sketcher.Constraint("Tangent", 8, 2, 9, 1))
sketch3.addConstraint(Sketcher.Constraint("Tangent", 9, 2, 10, 1))
sketch3.addConstraint(Sketcher.Constraint("Tangent", 10, 2, 11, 1))
sketch3.addConstraint(Sketcher.Constraint("Tangent", 11, 2, 4, 1))
sketch3.addConstraint(Sketcher.Constraint("Vertical", 0))
sketch3.addConstraint(Sketcher.Constraint("Horizontal", 1))
sketch3.addConstraint(Sketcher.Constraint("Vertical", 2))
sketch3.addConstraint(Sketcher.Constraint("Horizontal", 3))
sketch3.addConstraint(Sketcher.Constraint("Horizontal", 5))
sketch3.addConstraint(Sketcher.Constraint("Vertical", 7))
sketch3.addConstraint(Sketcher.Constraint("Horizontal", 9))
sketch3.addConstraint(Sketcher.Constraint("Vertical", 11))
sketch3.addConstraint(Sketcher.Constraint("Equal", 4, 6))
sketch3.addConstraint(Sketcher.Constraint("Equal", 6, 8))
sketch3.addConstraint(Sketcher.Constraint("Equal", 8, 10))
sketch3.addConstraint(Sketcher.Constraint("Symmetric", 0, 2, 2, 2, -1, 1))
sketch3.addConstraint(Sketcher.Constraint("Radius", 4, 5.0))
sketch3.addConstraint(Sketcher.Constraint("DistanceX", 1, 2, 1, 1, 76.0))
sketch3.addConstraint(Sketcher.Constraint("DistanceY", 0, 2, 0, 1, 60.0))
sketch3.addConstraint(Sketcher.Constraint("DistanceX", 5, 2, 5, 1, 59.8))
sketch3.addConstraint(Sketcher.Constraint("DistanceX", -1, 1, 4, 3, 29.9))
sketch3.addConstraint(Sketcher.Constraint("DistanceY", 8, 3, -1, 1, 21.9))
sketch3.addConstraint(Sketcher.Constraint("DistanceY", 7, 2, 7, 1, 43.804317))
sketch3.setExpression("Constraints[24]", "Params.sketch3_radius")
sketch3.setExpression("Constraints[25]", "Params.sketch3_width")
sketch3.setExpression("Constraints[26]", "Params.sketch3_height")
sketch3.setExpression("Constraints[27]", "Params.sketch3_width2")
pocket1 = body.newObject("PartDesign::Pocket", "Pocket")
pocket1.Profile = sketch3
pocket1.setExpression("Length", "Params.pocket1_length")
pocket1.Reversed = True

sketch4 = body.newObject("Sketcher::SketchObject", "Sketch003")
sketch4.AttachmentSupport = (doc.getObject("XY_Plane"), [""])
sketch4.MapMode = "FlatFace"
sketch4.addGeometry(Part.Circle(V(0, 0, 0), V(0, 0, 1), 1.7), False)
sketch4.addConstraint(Sketcher.Constraint("Coincident", 0, 3, -1, 1))
sketch4.addConstraint(Sketcher.Constraint("Diameter", 0, 3.43))
sketch4.setExpression("Constraints[1]", "Params.sketch4_diameter")
pocket2 = body.newObject("PartDesign::Pocket", "Pocket001")
pocket2.Profile = sketch4
pocket2.setExpression("Length", "Params.pocket2_length")
pocket2.Reversed = True

sketch5 = body.newObject("Sketcher::SketchObject", "Sketch004")
sketch5.AttachmentSupport = (doc.getObject("XZ_Plane"), [""])
sketch5.MapMode = "FlatFace"
sketch5.addGeometry(Part.LineSegment(V(0, 2, 0), V(11, 2, 0)), False)
sketch5.addGeometry(Part.LineSegment(V(11, 2, 0), V(13, 0, 0)), False)
sketch5.addGeometry(Part.LineSegment(V(13, 0, 0), V(0, 0, 0)), False)
sketch5.addGeometry(Part.LineSegment(V(0, 0, 0), V(0, 2, 0)), False)
sketch5.addConstraint(Sketcher.Constraint("Coincident", 0, 2, 1, 1))
sketch5.addConstraint(Sketcher.Constraint("Coincident", 1, 2, 2, 1))
sketch5.addConstraint(Sketcher.Constraint("Coincident", 2, 2, 3, 1))
sketch5.addConstraint(Sketcher.Constraint("Coincident", 3, 2, 0, 1))
sketch5.addConstraint(Sketcher.Constraint("Horizontal", 0))
sketch5.addConstraint(Sketcher.Constraint("Horizontal", 2))
sketch5.addConstraint(Sketcher.Constraint("Vertical", 3))
sketch5.addConstraint(Sketcher.Constraint("Coincident", 2, 2, -1, 1))
sketch5.addConstraint(Sketcher.Constraint("DistanceX", 0, 1, 0, 2, 11.0))
sketch5.addConstraint(Sketcher.Constraint("DistanceX", 2, 2, 2, 1, 13.0))
sketch5.addConstraint(Sketcher.Constraint("DistanceY", 3, 1, 3, 2, 2.0))
sketch5.setExpression("Constraints[8]", "Params.sketch5_width")
sketch5.setExpression("Constraints[9]", "Params.sketch5_width2")
sketch5.setExpression("Constraints[10]", "Params.sketch5_height")
groove = body.newObject("PartDesign::Groove", "Groove")
groove.Profile = sketch5
groove.ReferenceAxis = (sketch5, ["V_Axis"])
groove.setExpression("Angle", "Params.groove_angle")

sketch6 = body.newObject("Sketcher::SketchObject", "Sketch005")
sketch6.AttachmentSupport = (doc.getObject("XY_Plane"), [""])
sketch6.MapMode = "FlatFace"
sketch6.addGeometry(Part.Circle(V(32.4, 17.9, 0), V(0, 0, 1), 1.5), False)
sketch6.addGeometry(Part.Circle(V(-32.4, 19.4, 0), V(0, 0, 1), 1.5), False)
sketch6.addGeometry(Part.Circle(V(-32.4, -19.4, 0), V(0, 0, 1), 1.5), False)
sketch6.addGeometry(Part.Circle(V(32.4, -19.4, 0), V(0, 0, 1), 1.5), False)
sketch6.addConstraint(Sketcher.Constraint("Equal", 0, 1))
sketch6.addConstraint(Sketcher.Constraint("Equal", 1, 2))
sketch6.addConstraint(Sketcher.Constraint("Equal", 2, 3))
sketch6.addConstraint(Sketcher.Constraint("Symmetric", 2, 3, 3, 3, -2))
sketch6.addConstraint(Sketcher.Constraint("Vertical", 1, 3, 2, 3))
sketch6.addConstraint(Sketcher.Constraint("Vertical", 0, 3, 3, 3))
sketch6.addConstraint(Sketcher.Constraint("Diameter", 0, 3.0))
sketch6.addConstraint(Sketcher.Constraint("DistanceX", -1, 1, 0, 3, 32.4))
sketch6.addConstraint(Sketcher.Constraint("DistanceY", 2, 3, -1, 1, 19.4))
sketch6.addConstraint(Sketcher.Constraint("DistanceY", 0, 3, 1, 3, 1.5))
sketch6.addConstraint(Sketcher.Constraint("DistanceY", -1, 1, 0, 3, 17.904317))
sketch6.setExpression("Constraints[6]", "Params.sketch6_diameter")
pocket3 = body.newObject("PartDesign::Pocket", "Pocket002")
pocket3.Profile = sketch6
pocket3.Type = "ThroughAll"
pocket3.Reversed = True

sketch7 = body.newObject("Sketcher::SketchObject", "Sketch006")
sketch7.AttachmentSupport = (doc.getObject("XY_Plane"), [""])
sketch7.MapMode = "FlatFace"
sketch7.AttachmentOffset = App.Placement(V(0, 0, 2), App.Rotation())
sketch7.addGeometry(Part.Circle(V(-21.9, 16.9, 0), V(0, 0, 1), 2.5), False)
sketch7.addGeometry(Part.Circle(V(21.9, 16.9, 0), V(0, 0, 1), 2.5), False)
sketch7.addGeometry(Part.Circle(V(-21.9, -19.4, 0), V(0, 0, 1), 2.5), False)
sketch7.addConstraint(Sketcher.Constraint("Equal", 0, 1))
sketch7.addConstraint(Sketcher.Constraint("Equal", 1, 2))
sketch7.addConstraint(Sketcher.Constraint("Symmetric", 0, 3, 1, 3, -2))
sketch7.addConstraint(Sketcher.Constraint("Vertical", 0, 3, 2, 3))
sketch7.addConstraint(Sketcher.Constraint("Diameter", 0, 5.0))
sketch7.addConstraint(Sketcher.Constraint("DistanceX", 0, 3, -1, 1, 21.9))
sketch7.addConstraint(Sketcher.Constraint("DistanceY", 2, 3, -1, 1, 19.4))
sketch7.addConstraint(Sketcher.Constraint("DistanceY", -1, 1, 0, 3, 16.904317))
sketch7.setExpression("Constraints[4]", "Params.sketch7_diameter")
pocket4 = body.newObject("PartDesign::Pocket", "Pocket003")
pocket4.Profile = sketch7
pocket4.Type = "ThroughAll"

sketch8 = body.newObject("Sketcher::SketchObject", "Sketch007")
sketch8.AttachmentSupport = (doc.getObject("YZ_Plane"), [""])
sketch8.MapMode = "FlatFace"
sketch8.AttachmentOffset = App.Placement(V(0, 0, 11.146485), App.Rotation())
sketch8.addGeometry(Part.LineSegment(V(-11.8, 2, 0), V(-8.8, 2, 0)), False)
sketch8.addGeometry(Part.LineSegment(V(-8.8, 2, 0), V(-8.8, 0, 0)), False)
sketch8.addGeometry(Part.LineSegment(V(-8.8, 0, 0), V(-13.8, 0, 0)), False)
sketch8.addGeometry(Part.LineSegment(V(-13.8, 0, 0), V(-11.8, 2, 0)), False)
sketch8.addConstraint(Sketcher.Constraint("Coincident", 0, 2, 1, 1))
sketch8.addConstraint(Sketcher.Constraint("Coincident", 1, 2, 2, 1))
sketch8.addConstraint(Sketcher.Constraint("Coincident", 2, 2, 3, 1))
sketch8.addConstraint(Sketcher.Constraint("Coincident", 3, 2, 0, 1))
sketch8.addConstraint(Sketcher.Constraint("Horizontal", 0))
sketch8.addConstraint(Sketcher.Constraint("Vertical", 1))
sketch8.addConstraint(Sketcher.Constraint("Horizontal", 2))
sketch8.addConstraint(Sketcher.Constraint("PointOnObject", 1, 2, -1))
sketch8.addConstraint(Sketcher.Constraint("DistanceX", 0, 1, 0, 2, 3.0))
sketch8.addConstraint(Sketcher.Constraint("DistanceX", 2, 2, 2, 1, 5.0))
sketch8.addConstraint(Sketcher.Constraint("DistanceY", 1, 2, 1, 1, 2.0))
sketch8.addConstraint(Sketcher.Constraint("DistanceX", 0, 2, -1, 1, 8.780488))
sketch8.setExpression("Constraints[8]", "Params.sketch8_width")
sketch8.setExpression("Constraints[9]", "Params.sketch8_width2")
sketch8.setExpression("Constraints[10]", "Params.sketch8_height")
pocket5 = body.newObject("PartDesign::Pocket", "Pocket004")
pocket5.Profile = sketch8
pocket5.setExpression("Length", "Params.pocket5_length")
pocket5.Reversed = True

sketch9 = body.newObject("Sketcher::SketchObject", "Sketch008")
sketch9.Placement = App.Placement(V(-5.575, -9.656183, 0), App.Rotation(V(0.866025404, -0.5, 0), V(0, 0, -1), V(0.5, 0.866025404, 0), "ZXY"))
sketch9.addGeometry(Part.LineSegment(V(-8.8, -2, 0), V(-8.8, 0, 0)), False)
sketch9.addGeometry(Part.LineSegment(V(-8.8, 0, 0), V(-13.8, 0, 0)), False)
sketch9.addGeometry(Part.LineSegment(V(-13.8, 0, 0), V(-11.8, -2, 0)), False)
sketch9.addGeometry(Part.LineSegment(V(-11.8, -2, 0), V(-8.8, -2, 0)), False)
sketch9.addConstraint(Sketcher.Constraint("Coincident", 0, 2, 1, 1))
sketch9.addConstraint(Sketcher.Constraint("Coincident", 1, 2, 2, 1))
sketch9.addConstraint(Sketcher.Constraint("Coincident", 2, 2, 3, 1))
sketch9.addConstraint(Sketcher.Constraint("Coincident", 3, 2, 0, 1))
sketch9.addConstraint(Sketcher.Constraint("Vertical", 0))
sketch9.addConstraint(Sketcher.Constraint("Horizontal", 1))
sketch9.addConstraint(Sketcher.Constraint("Horizontal", 3))
sketch9.addConstraint(Sketcher.Constraint("PointOnObject", 0, 2, -1))
sketch9.addConstraint(Sketcher.Constraint("DistanceX", 1, 2, 1, 1, 5.0))
sketch9.addConstraint(Sketcher.Constraint("DistanceX", 3, 1, 3, 2, 3.0))
sketch9.addConstraint(Sketcher.Constraint("DistanceY", 0, 1, 0, 2, 2.0))
sketch9.addConstraint(Sketcher.Constraint("DistanceX", 0, 2, -1, 1, 8.780488))
sketch9.setExpression("Constraints[8]", "Params.sketch9_width")
sketch9.setExpression("Constraints[9]", "Params.sketch9_width2")
sketch9.setExpression("Constraints[10]", "Params.sketch9_height")
pocket6 = body.newObject("PartDesign::Pocket", "Pocket005")
pocket6.Profile = sketch9
pocket6.setExpression("Length", "Params.pocket6_length")

sketch10 = body.newObject("Sketcher::SketchObject", "Sketch009")
sketch10.Placement = App.Placement(V(-5.575, 9.656183, 0), App.Rotation(V(-0.866025404, -0.5, 0), V(0, 0, -1), V(0.5, -0.866025404, 0), "ZXY"))
sketch10.addGeometry(Part.LineSegment(V(-8.8, -2, 0), V(-8.8, 0, 0)), False)
sketch10.addGeometry(Part.LineSegment(V(-8.8, 0, 0), V(-13.8, 0, 0)), False)
sketch10.addGeometry(Part.LineSegment(V(-13.8, 0, 0), V(-11.8, -2, 0)), False)
sketch10.addGeometry(Part.LineSegment(V(-11.8, -2, 0), V(-8.8, -2, 0)), False)
sketch10.addConstraint(Sketcher.Constraint("Coincident", 0, 2, 1, 1))
sketch10.addConstraint(Sketcher.Constraint("Coincident", 1, 2, 2, 1))
sketch10.addConstraint(Sketcher.Constraint("Coincident", 2, 2, 3, 1))
sketch10.addConstraint(Sketcher.Constraint("Coincident", 3, 2, 0, 1))
sketch10.addConstraint(Sketcher.Constraint("Vertical", 0))
sketch10.addConstraint(Sketcher.Constraint("Horizontal", 1))
sketch10.addConstraint(Sketcher.Constraint("Horizontal", 3))
sketch10.addConstraint(Sketcher.Constraint("PointOnObject", 0, 2, -1))
sketch10.addConstraint(Sketcher.Constraint("DistanceX", 1, 2, 1, 1, 5.0))
sketch10.addConstraint(Sketcher.Constraint("DistanceX", 3, 1, 3, 2, 3.0))
sketch10.addConstraint(Sketcher.Constraint("DistanceY", 0, 1, 0, 2, 2.0))
sketch10.addConstraint(Sketcher.Constraint("DistanceX", 0, 2, -1, 1, 8.780488))
sketch10.setExpression("Constraints[8]", "Params.sketch10_width")
sketch10.setExpression("Constraints[9]", "Params.sketch10_width2")
sketch10.setExpression("Constraints[10]", "Params.sketch10_height")
pocket7 = body.newObject("PartDesign::Pocket", "Pocket006")
pocket7.Profile = sketch10
pocket7.setExpression("Length", "Params.pocket7_length")

doc.recompute()
